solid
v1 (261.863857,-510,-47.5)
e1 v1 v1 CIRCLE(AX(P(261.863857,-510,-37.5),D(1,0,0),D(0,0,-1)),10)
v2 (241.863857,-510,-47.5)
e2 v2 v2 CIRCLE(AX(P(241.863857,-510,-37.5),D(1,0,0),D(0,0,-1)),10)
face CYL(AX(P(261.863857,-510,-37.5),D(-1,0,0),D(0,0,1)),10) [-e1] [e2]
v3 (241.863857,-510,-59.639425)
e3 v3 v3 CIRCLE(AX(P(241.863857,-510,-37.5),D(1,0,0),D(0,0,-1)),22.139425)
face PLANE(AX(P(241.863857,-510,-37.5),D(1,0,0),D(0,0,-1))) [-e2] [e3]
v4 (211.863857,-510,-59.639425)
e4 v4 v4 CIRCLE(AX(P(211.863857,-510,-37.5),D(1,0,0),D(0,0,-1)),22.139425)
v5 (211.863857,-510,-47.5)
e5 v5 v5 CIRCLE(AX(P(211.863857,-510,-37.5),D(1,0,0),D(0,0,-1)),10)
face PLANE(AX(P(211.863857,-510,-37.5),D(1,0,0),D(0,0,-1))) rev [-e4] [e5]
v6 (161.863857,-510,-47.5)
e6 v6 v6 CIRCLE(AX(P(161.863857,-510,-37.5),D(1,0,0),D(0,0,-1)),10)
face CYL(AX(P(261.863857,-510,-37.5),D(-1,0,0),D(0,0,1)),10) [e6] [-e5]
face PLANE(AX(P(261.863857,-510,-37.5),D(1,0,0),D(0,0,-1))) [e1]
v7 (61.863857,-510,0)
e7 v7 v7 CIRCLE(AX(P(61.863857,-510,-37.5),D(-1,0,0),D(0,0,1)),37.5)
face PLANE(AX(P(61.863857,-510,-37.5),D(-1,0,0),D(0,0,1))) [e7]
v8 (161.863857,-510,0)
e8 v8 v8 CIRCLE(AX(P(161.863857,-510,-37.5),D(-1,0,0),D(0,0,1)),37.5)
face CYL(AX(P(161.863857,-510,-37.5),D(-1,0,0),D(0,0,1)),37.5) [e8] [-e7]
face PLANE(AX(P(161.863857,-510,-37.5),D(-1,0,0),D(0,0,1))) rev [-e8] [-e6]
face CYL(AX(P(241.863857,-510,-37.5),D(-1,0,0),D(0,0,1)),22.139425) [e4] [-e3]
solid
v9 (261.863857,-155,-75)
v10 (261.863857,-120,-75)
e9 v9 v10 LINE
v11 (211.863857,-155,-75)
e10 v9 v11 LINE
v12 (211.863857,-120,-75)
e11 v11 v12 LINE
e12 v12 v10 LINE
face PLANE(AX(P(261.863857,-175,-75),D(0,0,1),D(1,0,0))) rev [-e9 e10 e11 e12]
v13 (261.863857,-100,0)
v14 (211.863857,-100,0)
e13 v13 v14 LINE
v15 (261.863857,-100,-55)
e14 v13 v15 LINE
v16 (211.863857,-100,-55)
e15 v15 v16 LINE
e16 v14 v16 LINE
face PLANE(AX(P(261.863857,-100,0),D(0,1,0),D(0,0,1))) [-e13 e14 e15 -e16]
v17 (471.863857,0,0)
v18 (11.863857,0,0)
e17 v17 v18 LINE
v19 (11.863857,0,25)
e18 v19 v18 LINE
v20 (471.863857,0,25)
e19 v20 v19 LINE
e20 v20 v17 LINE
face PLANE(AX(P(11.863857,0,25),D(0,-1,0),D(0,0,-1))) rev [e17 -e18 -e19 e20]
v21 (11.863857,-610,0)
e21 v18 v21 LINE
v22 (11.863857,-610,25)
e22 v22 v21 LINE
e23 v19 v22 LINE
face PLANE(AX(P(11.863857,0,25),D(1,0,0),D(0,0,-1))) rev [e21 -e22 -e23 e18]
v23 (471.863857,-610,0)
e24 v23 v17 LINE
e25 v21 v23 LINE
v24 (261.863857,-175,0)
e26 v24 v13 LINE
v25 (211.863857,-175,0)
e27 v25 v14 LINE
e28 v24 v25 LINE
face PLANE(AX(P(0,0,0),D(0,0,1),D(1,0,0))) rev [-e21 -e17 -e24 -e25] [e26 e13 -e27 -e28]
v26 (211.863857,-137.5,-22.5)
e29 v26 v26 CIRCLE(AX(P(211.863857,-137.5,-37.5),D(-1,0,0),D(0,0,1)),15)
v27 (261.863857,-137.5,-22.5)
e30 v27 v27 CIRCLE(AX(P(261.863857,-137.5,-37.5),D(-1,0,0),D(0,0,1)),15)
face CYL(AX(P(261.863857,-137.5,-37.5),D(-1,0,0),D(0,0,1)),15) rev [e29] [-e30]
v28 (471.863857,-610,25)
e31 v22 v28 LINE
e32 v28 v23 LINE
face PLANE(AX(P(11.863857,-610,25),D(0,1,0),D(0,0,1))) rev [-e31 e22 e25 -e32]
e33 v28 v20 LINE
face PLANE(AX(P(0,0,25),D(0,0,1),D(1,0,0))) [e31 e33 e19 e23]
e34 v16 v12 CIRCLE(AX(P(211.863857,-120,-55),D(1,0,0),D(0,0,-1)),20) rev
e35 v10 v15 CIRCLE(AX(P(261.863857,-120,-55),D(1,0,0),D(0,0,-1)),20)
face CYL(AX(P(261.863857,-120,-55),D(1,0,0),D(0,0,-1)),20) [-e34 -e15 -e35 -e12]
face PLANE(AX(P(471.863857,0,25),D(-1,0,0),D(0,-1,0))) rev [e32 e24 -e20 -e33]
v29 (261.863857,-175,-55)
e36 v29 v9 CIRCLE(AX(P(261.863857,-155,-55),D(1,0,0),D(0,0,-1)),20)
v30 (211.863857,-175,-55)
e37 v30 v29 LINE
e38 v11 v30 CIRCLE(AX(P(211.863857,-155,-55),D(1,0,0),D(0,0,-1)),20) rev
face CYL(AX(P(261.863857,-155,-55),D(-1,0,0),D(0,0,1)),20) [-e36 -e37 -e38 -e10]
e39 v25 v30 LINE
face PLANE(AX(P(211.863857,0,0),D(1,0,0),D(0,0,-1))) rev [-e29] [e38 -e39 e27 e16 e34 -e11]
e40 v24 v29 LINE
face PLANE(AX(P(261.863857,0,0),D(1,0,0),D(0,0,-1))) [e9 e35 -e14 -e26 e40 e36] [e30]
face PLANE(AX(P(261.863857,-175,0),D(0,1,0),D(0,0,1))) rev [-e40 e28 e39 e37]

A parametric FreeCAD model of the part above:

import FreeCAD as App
import Part
import Sketcher
Q = App.Units.Quantity


def edges_at(feature, points):
    """Names of the edges that pass closest to the given points."""
    edges = feature.Shape.Edges
    near = lambda p: min(range(len(edges)), key=lambda i: edges[i].distToShape(Part.Vertex(*p))[0])
    return sorted({f"Edge{near(p) + 1}" for p in points})

doc = App.newDocument("Part")
params = doc.addObject("Spreadsheet::Sheet", "Params")
for row, (alias, value) in enumerate([
    ("sketch1_width", "460 mm"),
    ("sketch1_height", "610 mm"),
    ("pad1_length", "25 mm"),
    ("sketch2_diameter", "30 mm"),
    ("sketch2_width", "75 mm"),
    ("pad2_length", "50 mm"),
    ("fillet_radius", "20 mm"),
    ("sketch3_diameter", "75 mm"),
    ("pad3_length", "100 mm"),
    ("sketch4_diameter", "20 mm"),
    ("pad4_length", "100 mm"),
    ("pad5_length", "30 mm"),
], start=1):
    params.set(f"A{row}", alias)
    params.set(f"B{row}", "=" + value)
    params.setAlias(f"B{row}", alias)

body = doc.addObject("PartDesign::Body", "Body")

# Sketch on XY plane
sketch1 = doc.addObject("Sketcher::SketchObject", "Sketch")
body.addObject(sketch1)
sketch1.AttachmentSupport = (doc.XY_Plane, [""])
sketch1.MapMode = "FlatFace"
sketch1.addGeometry([
    Part.LineSegment(App.Vector(12, 0, 0), App.Vector(12, -610, 0)),
    Part.LineSegment(App.Vector(12, -610, 0), App.Vector(472, -610, 0)),
    Part.LineSegment(App.Vector(472, -610, 0), App.Vector(472, 0, 0)),
    Part.LineSegment(App.Vector(472, 0, 0), App.Vector(12, 0, 0)),
], False)
sketch1.addConstraint([
    Sketcher.Constraint("Coincident", 0, 2, 1, 1),
    Sketcher.Constraint("Coincident", 1, 2, 2, 1),
    Sketcher.Constraint("Coincident", 2, 2, 3, 1),
    Sketcher.Constraint("Coincident", 3, 2, 0, 1),
    Sketcher.Constraint("Vertical", 0),
    Sketcher.Constraint("Horizontal", 1),
    Sketcher.Constraint("Vertical", 2),
    Sketcher.Constraint("Horizontal", 3),
    Sketcher.Constraint("PointOnObject", 2, 2, -1),
    Sketcher.Constraint("DistanceX", 1, 1, 1, 2, Q("460 mm")),
    Sketcher.Constraint("DistanceY", 0, 2, 0, 1, Q("610 mm")),
    Sketcher.Constraint("DistanceX", -1, 1, 0, 2, Q("11.863857 mm")),
])
sketch1.setExpression("Constraints[9]", "Params.sketch1_width")
sketch1.setExpression("Constraints[10]", "Params.sketch1_height")
pad1 = doc.addObject("PartDesign::Pad", "Pad")
body.addObject(pad1)
pad1.Profile = sketch1
pad1.setExpression("Length", "Params.pad1_length")

# Sketch on YZ plane
sketch2 = doc.addObject("Sketcher::SketchObject", "Sketch001")
body.addObject(sketch2)
sketch2.AttachmentSupport = (doc.YZ_Plane, [""])
sketch2.MapMode = "FlatFace"
sketch2.AttachmentOffset = App.Placement(App.Vector(0, 0, 211.863857), App.Rotation())
sketch2.addGeometry([
    Part.LineSegment(App.Vector(-100, -75, 0), App.Vector(-175, -75, 0)),  # 0
    Part.LineSegment(App.Vector(-175, -75, 0), App.Vector(-175, 0, 0)),  # 1
    Part.LineSegment(App.Vector(-175, 0, 0), App.Vector(-100, 0, 0)),  # 2
    Part.LineSegment(App.Vector(-100, 0, 0), App.Vector(-100, -75, 0)),  # 3
    Part.Circle(App.Vector(-138, -38, 0), App.Vector(0, 0, 1), 15),  # 4
], False)
sketch2.addConstraint([
    Sketcher.Constraint("Coincident", 0, 2, 1, 1),
    Sketcher.Constraint("Coincident", 1, 2, 2, 1),
    Sketcher.Constraint("Coincident", 2, 2, 3, 1),
    Sketcher.Constraint("Coincident", 3, 2, 0, 1),
    Sketcher.Constraint("Horizontal", 0),
    Sketcher.Constraint("Vertical", 1),
    Sketcher.Constraint("Horizontal", 2),
    Sketcher.Constraint("Vertical", 3),
    Sketcher.Constraint("PointOnObject", 1, 2, -1),
    Sketcher.Constraint("Equal", 2, 1),
    Sketcher.Constraint("Diameter", 4, Q("30 mm")),
    Sketcher.Constraint("DistanceX", 0, 2, 0, 1, Q("75 mm")),
    Sketcher.Constraint("DistanceX", 0, 2, -1, 1, Q("175 mm")),
    Sketcher.Constraint("DistanceX", 4, 3, -1, 1, Q("137.5 mm")),
    Sketcher.Constraint("DistanceY", 4, 3, -1, 1, Q("37.5 mm")),
])
sketch2.setExpression("Constraints[10]", "Params.sketch2_diameter")
sketch2.setExpression("Constraints[11]", "Params.sketch2_width")
pad2 = doc.addObject("PartDesign::Pad", "Pad001")
body.addObject(pad2)
pad2.Profile = sketch2
pad2.setExpression("Length", "Params.pad2_length")
doc.recompute()

fillet = doc.addObject("PartDesign::Fillet", "Fillet")
body.addObject(fillet)
fillet.Base = (pad2, edges_at(pad2, [(236.864, -100, -75), (236.864, -175, -75)]))
fillet.setExpression("Radius", "Params.fillet_radius")
body2 = doc.addObject("PartDesign::Body", "Body001")

# Sketch on YZ plane
sketch3 = doc.addObject("Sketcher::SketchObject", "Sketch002")
body2.addObject(sketch3)
sketch3.AttachmentSupport = (doc.getObject("YZ_Plane001"), [""])
sketch3.MapMode = "FlatFace"
sketch3.AttachmentOffset = App.Placement(App.Vector(0, 0, 61.863857), App.Rotation())
sketch3.addGeometry(Part.Circle(App.Vector(-510, -38, 0), App.Vector(0, 0, 1), 38), False)
sketch3.addConstraint([
    Sketcher.Constraint("Diameter", 0, Q("75 mm")),
    Sketcher.Constraint("DistanceX", 0, 3, -1, 1, Q("510 mm")),
    Sketcher.Constraint("DistanceY", 0, 3, -1, 1, Q("37.5 mm")),
])
sketch3.setExpression("Constraints[0]", "Params.sketch3_diameter")
pad3 = doc.addObject("PartDesign::Pad", "Pad002")
body2.addObject(pad3)
pad3.Profile = sketch3
pad3.setExpression("Length", "Params.pad3_length")

# Sketch on YZ plane
sketch4 = doc.addObject("Sketcher::SketchObject", "Sketch003")
body2.addObject(sketch4)
sketch4.AttachmentSupport = (doc.getObject("YZ_Plane001"), [""])
sketch4.MapMode = "FlatFace"
sketch4.AttachmentOffset = App.Placement(App.Vector(0, 0, 161.863857), App.Rotation())
sketch4.addGeometry(Part.Circle(App.Vector(-510, -38, 0), App.Vector(0, 0, 1), 10), False)
sketch4.addConstraint([
    Sketcher.Constraint("Diameter", 0, Q("20 mm")),
    Sketcher.Constraint("DistanceX", 0, 3, -1, 1, Q("510 mm")),
    Sketcher.Constraint("DistanceY", 0, 3, -1, 1, Q("37.5 mm")),
])
sketch4.setExpression("Constraints[0]", "Params.sketch4_diameter")
pad4 = doc.addObject("PartDesign::Pad", "Pad003")
body2.addObject(pad4)
pad4.Profile = sketch4
pad4.setExpression("Length", "Params.pad4_length")

# Sketch on YZ plane
sketch5 = doc.addObject("Sketcher::SketchObject", "Sketch004")
body2.addObject(sketch5)
sketch5.AttachmentSupport = (doc.getObject("YZ_Plane001"), [""])
sketch5.MapMode = "FlatFace"
sketch5.AttachmentOffset = App.Placement(App.Vector(0, 0, 211.863857), App.Rotation())
sketch5.addGeometry(Part.Circle(App.Vector(-510, -38, 0), App.Vector(0, 0, 1), 22), False)
sketch5.addConstraint([
    Sketcher.Constraint("DistanceX", 0, 3, -1, 1, Q("510 mm")),
    Sketcher.Constraint("DistanceY", 0, 3, -1, 1, Q("37.5 mm")),
    Sketcher.Constraint("Diameter", 0, Q("44.278849 mm")),
])
pad5 = doc.addObject("PartDesign::Pad", "Pad004")
body2.addObject(pad5)
pad5.Profile = sketch5
pad5.setExpression("Length", "Params.pad5_length")

doc.recompute()
